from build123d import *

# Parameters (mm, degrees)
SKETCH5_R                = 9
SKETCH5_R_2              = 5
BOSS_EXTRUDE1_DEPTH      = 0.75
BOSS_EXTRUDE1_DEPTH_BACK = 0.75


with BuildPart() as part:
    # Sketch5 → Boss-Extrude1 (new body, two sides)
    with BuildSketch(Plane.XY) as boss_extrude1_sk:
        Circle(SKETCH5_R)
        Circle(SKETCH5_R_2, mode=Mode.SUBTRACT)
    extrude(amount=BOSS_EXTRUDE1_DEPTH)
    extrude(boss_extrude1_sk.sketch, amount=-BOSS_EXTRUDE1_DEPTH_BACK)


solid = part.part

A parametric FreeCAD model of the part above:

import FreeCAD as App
import Part
import Sketcher

doc = App.newDocument("Part")
body = doc.addObject("PartDesign::Body", "Body")

# Sketch on XY plane
sketch1 = body.newObject("Sketcher::SketchObject", "Sketch")
sketch1.AttachmentSupport = (doc.getObject("XY_Plane"), [""])
sketch1.MapMode = "FlatFace"
sketch1.addGeometry([
    Part.Circle(App.Vector(0, 0, 0), App.Vector(0, 0, 1), 9),
    Part.Circle(App.Vector(0, 0, 0), App.Vector(0, 0, 1), 5),
], False)
sketch1.addConstraint([
    Sketcher.Constraint("Coincident", 0, 3, -1, 1),
    Sketcher.Constraint("Coincident", 1, 3, -1, 1),
    Sketcher.Constraint("Diameter", 0, 18.0),
    Sketcher.Constraint("Diameter", 1, 10.0),
])
pad1 = body.newObject("PartDesign::Pad", "Pad")
pad1.Profile = sketch1
pad1.Type = "TwoLengths"
pad1.Length = 0.75
pad1.Length2 = 0.75

doc.recompute()
